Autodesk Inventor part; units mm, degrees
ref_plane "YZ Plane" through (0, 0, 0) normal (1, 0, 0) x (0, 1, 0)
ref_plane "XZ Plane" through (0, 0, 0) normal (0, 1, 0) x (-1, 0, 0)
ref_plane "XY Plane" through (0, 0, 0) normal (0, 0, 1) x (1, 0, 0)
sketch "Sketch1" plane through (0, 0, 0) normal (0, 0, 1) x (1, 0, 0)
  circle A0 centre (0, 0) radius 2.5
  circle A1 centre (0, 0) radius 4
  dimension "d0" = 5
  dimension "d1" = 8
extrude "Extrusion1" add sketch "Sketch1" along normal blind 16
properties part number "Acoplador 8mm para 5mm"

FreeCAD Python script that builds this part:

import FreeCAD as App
import Part
import Sketcher

doc = App.newDocument("Part")
body = doc.addObject("PartDesign::Body", "Body")

# Sketch on XY plane
sketch1 = doc.addObject("Sketcher::SketchObject", "Sketch")
body.addObject(sketch1)
sketch1.AttachmentSupport = (doc.XY_Plane, [""])
sketch1.MapMode = "FlatFace"
sketch1.addGeometry(Part.Circle(App.Vector(0, 0, 0), App.Vector(0, 0, 1), 4), False)
sketch1.addGeometry(Part.Circle(App.Vector(0, 0, 0), App.Vector(0, 0, 1), 2.5), False)
sketch1.addConstraint(Sketcher.Constraint("Coincident", 0, 3, -1, 1))
sketch1.addConstraint(Sketcher.Constraint("Coincident", 1, 3, -1, 1))
sketch1.addConstraint(Sketcher.Constraint("Diameter", 0, 8.0))
sketch1.addConstraint(Sketcher.Constraint("Diameter", 1, 5.0))
pad1 = doc.addObject("PartDesign::Pad", "Pad")
body.addObject(pad1)
pad1.Profile = sketch1
pad1.Length = 16

doc.recompute()
